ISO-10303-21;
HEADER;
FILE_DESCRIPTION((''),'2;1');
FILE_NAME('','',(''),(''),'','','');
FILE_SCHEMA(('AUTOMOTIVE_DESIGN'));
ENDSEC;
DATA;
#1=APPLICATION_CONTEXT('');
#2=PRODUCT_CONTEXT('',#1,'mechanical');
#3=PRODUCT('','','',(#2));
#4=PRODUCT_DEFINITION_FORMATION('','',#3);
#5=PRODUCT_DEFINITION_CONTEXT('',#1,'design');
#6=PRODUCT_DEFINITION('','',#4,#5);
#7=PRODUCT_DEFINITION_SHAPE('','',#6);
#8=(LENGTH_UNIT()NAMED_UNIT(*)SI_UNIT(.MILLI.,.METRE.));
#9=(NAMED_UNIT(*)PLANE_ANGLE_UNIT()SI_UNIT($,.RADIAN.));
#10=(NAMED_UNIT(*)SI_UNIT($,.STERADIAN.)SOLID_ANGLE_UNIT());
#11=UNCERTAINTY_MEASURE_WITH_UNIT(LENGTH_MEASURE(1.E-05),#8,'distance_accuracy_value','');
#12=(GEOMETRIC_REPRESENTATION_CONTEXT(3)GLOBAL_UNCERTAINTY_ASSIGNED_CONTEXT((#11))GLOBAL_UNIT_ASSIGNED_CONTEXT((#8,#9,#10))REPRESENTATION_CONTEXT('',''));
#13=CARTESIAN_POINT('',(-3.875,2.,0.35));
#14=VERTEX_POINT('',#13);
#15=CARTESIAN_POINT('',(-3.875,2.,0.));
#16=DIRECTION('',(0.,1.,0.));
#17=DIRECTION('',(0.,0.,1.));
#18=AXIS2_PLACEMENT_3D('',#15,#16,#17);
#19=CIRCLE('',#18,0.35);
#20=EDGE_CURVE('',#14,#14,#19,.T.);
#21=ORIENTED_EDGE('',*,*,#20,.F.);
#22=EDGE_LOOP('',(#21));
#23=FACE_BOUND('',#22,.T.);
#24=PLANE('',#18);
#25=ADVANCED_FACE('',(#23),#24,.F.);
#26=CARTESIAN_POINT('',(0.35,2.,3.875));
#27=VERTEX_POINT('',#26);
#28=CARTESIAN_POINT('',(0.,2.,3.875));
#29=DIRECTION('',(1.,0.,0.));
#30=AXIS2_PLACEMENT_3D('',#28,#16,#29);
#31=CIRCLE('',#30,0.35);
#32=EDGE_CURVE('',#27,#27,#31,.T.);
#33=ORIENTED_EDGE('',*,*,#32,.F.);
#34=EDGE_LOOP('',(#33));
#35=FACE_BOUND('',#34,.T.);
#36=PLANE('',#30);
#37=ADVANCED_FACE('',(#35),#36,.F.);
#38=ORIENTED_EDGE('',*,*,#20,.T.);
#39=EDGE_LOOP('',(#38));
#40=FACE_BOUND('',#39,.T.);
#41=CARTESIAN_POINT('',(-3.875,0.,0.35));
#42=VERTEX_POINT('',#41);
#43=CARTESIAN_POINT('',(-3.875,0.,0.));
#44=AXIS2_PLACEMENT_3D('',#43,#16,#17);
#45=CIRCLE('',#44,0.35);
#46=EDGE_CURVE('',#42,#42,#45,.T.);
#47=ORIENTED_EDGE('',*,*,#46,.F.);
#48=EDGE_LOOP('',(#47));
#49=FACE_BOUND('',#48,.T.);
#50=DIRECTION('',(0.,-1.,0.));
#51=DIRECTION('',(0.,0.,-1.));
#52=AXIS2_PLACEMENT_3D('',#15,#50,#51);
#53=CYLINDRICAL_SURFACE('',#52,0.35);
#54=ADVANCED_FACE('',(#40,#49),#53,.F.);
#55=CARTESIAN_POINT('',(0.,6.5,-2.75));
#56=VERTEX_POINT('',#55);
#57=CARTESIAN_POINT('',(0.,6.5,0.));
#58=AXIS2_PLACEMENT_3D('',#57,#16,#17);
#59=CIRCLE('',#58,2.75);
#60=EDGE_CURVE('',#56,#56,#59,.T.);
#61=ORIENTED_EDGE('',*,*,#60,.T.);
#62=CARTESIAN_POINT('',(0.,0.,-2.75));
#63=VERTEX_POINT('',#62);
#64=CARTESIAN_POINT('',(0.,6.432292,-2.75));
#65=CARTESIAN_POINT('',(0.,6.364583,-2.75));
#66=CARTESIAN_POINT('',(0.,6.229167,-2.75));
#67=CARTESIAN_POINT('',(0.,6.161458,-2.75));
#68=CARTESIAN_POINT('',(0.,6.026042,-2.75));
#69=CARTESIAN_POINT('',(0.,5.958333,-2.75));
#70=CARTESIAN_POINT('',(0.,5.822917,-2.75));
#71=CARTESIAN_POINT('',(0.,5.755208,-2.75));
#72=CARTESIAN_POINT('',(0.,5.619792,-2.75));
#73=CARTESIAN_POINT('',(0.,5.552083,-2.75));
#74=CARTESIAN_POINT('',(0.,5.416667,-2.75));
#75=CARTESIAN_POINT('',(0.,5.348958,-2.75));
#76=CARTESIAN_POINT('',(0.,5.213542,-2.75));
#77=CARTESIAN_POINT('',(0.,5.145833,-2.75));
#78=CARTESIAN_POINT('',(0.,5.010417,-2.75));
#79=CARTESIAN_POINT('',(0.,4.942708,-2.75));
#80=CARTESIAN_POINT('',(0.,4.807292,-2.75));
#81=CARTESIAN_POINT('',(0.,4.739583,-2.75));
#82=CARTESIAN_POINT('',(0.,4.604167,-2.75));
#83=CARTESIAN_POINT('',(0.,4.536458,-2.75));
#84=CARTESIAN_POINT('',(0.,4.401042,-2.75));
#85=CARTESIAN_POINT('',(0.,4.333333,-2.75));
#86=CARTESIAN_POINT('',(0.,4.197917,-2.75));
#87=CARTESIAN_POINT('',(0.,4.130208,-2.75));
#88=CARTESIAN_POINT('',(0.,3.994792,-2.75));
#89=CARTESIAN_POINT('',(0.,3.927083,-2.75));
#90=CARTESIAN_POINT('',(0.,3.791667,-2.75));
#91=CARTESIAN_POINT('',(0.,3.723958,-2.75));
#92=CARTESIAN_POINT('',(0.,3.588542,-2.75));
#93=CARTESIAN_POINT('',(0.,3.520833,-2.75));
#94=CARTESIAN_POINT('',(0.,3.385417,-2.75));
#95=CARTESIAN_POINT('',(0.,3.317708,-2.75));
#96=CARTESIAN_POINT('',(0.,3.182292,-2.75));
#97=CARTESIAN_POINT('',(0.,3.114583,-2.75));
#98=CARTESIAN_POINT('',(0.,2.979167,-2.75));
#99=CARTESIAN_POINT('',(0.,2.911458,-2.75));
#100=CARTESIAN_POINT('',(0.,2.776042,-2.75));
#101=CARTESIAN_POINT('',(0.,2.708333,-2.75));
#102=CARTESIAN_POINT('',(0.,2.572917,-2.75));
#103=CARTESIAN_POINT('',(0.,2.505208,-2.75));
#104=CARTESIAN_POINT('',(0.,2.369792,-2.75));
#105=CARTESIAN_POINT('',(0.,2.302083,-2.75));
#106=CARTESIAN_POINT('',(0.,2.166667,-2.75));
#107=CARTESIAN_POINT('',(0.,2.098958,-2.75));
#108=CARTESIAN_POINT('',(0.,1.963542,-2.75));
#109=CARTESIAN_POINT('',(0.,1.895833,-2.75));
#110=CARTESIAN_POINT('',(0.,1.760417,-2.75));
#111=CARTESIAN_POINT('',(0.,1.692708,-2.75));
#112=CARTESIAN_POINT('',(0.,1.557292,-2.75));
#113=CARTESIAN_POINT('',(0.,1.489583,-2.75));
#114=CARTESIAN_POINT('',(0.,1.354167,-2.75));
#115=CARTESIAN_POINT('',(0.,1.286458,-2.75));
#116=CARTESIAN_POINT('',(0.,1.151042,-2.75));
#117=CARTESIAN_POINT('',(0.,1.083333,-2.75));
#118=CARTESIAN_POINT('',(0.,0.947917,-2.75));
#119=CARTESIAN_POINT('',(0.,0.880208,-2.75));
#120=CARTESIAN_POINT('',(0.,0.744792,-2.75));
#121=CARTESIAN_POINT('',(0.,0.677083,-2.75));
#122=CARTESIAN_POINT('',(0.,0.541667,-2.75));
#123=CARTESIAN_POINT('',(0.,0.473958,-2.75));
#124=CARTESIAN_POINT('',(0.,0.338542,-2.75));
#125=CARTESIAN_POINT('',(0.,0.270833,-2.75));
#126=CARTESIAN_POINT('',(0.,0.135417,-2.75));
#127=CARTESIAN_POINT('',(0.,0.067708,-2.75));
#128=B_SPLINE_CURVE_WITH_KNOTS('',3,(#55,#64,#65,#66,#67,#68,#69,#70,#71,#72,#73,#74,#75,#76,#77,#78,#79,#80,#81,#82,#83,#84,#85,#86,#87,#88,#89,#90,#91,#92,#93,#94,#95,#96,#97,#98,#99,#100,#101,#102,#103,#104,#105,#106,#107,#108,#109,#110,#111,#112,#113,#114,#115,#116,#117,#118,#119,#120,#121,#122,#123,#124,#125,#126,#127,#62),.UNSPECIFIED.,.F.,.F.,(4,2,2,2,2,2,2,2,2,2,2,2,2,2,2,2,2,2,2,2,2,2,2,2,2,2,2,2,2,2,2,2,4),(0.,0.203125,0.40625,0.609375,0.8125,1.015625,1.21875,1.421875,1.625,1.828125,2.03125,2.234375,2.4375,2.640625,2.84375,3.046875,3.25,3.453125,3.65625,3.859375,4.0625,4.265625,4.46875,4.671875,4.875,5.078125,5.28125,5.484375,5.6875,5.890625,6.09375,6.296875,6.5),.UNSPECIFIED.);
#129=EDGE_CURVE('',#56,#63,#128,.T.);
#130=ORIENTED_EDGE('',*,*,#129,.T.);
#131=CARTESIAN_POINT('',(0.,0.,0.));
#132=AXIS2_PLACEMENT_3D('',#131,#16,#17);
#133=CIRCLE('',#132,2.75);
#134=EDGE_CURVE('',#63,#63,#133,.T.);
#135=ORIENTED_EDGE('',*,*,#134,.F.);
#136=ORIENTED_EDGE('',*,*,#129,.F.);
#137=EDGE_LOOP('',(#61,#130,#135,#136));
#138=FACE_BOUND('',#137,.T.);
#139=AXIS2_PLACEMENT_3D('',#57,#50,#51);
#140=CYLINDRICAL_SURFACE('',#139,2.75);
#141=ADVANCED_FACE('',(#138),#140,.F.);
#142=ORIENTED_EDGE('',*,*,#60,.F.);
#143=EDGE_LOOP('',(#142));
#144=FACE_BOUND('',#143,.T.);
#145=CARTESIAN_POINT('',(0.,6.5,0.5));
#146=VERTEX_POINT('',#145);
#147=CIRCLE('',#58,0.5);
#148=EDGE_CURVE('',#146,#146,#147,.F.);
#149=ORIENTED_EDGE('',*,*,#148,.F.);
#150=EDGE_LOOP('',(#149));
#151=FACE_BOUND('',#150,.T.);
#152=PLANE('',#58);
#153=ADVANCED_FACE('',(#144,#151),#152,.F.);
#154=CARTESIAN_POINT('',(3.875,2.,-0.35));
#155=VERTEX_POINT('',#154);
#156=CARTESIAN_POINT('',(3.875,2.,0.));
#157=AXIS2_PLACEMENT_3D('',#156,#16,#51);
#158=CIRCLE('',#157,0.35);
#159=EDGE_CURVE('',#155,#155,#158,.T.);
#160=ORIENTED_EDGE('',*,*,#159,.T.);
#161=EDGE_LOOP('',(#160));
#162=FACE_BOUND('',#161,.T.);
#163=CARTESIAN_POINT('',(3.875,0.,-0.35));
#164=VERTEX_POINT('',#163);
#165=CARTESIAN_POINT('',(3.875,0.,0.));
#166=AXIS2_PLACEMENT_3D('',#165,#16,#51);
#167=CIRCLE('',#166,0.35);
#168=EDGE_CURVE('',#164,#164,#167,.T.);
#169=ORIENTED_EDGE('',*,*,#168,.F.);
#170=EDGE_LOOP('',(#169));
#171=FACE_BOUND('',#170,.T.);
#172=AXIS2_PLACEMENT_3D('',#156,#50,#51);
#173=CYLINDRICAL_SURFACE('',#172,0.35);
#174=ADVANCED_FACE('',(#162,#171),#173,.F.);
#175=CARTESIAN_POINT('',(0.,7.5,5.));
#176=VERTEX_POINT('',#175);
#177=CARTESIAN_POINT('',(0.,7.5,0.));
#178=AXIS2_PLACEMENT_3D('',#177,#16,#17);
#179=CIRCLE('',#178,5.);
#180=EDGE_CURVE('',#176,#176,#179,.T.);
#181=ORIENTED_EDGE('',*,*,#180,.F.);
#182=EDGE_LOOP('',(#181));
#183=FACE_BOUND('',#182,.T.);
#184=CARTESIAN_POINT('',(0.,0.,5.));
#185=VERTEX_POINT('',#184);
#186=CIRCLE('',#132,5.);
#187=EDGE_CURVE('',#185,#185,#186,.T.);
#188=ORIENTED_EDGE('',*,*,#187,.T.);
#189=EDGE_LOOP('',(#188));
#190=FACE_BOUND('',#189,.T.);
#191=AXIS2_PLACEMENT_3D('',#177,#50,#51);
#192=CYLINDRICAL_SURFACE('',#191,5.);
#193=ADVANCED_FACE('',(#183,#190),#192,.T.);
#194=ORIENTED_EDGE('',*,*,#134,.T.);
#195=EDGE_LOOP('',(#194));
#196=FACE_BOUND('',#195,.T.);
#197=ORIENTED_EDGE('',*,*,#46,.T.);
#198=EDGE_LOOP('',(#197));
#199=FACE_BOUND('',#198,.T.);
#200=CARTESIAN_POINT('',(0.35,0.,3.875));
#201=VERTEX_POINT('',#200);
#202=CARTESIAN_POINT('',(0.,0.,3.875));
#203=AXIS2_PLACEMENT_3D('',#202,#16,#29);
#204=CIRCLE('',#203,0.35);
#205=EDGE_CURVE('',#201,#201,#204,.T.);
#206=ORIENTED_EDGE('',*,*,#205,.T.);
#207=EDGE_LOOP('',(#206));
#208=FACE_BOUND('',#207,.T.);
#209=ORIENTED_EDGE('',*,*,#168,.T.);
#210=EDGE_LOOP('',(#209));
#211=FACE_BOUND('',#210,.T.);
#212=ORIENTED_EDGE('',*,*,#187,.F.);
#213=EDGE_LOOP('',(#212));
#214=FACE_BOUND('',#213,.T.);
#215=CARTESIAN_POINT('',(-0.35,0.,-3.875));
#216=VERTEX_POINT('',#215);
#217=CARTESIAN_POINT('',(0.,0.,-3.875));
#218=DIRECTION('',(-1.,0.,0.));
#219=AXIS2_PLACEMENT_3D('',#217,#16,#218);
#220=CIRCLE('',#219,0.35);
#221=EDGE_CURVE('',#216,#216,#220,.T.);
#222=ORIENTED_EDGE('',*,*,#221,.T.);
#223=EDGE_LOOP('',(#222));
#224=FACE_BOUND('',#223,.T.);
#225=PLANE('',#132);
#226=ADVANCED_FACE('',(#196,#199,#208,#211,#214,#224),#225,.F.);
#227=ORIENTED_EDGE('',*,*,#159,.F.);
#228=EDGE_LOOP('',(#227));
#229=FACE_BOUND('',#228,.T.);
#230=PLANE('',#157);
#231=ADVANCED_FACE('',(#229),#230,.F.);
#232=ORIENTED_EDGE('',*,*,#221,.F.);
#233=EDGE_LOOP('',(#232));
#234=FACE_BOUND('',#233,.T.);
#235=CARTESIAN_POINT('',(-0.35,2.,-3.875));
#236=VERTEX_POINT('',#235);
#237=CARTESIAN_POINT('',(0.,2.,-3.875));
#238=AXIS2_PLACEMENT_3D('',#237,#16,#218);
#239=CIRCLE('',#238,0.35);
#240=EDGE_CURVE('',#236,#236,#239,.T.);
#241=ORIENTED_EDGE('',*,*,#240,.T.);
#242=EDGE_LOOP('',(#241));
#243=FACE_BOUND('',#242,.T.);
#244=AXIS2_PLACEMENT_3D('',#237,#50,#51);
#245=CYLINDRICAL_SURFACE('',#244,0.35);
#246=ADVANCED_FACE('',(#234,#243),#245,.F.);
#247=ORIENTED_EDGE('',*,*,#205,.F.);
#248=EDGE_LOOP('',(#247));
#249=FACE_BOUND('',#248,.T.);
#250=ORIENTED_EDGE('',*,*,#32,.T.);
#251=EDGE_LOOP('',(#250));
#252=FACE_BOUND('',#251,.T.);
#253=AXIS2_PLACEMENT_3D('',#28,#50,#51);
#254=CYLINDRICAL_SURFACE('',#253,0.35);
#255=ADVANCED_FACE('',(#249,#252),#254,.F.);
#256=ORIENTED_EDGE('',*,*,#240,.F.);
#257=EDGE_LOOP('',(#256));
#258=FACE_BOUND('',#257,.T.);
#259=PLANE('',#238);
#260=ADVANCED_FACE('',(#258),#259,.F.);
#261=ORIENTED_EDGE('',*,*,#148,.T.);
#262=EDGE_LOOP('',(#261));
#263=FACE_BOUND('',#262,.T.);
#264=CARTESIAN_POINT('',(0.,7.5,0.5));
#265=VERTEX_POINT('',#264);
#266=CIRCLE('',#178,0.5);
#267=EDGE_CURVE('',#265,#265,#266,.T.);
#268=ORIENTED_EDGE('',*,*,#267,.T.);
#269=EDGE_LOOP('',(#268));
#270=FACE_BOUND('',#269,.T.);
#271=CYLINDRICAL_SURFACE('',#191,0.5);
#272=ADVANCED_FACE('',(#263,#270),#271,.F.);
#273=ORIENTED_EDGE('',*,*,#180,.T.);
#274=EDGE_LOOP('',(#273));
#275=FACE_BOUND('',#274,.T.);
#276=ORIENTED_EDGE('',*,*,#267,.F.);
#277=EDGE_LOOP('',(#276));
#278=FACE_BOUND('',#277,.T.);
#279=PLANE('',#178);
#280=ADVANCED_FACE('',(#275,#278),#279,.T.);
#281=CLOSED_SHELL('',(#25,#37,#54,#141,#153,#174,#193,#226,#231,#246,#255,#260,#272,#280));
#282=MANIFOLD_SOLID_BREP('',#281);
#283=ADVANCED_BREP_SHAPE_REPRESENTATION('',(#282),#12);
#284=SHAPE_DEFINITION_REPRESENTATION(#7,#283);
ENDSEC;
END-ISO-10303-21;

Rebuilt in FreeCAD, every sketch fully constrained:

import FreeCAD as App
import Part
import Sketcher
from FreeCAD import Vector
Q = App.Units.Quantity

doc = App.newDocument("Part")
body = doc.addObject("PartDesign::Body", "Body")

# Sketch on XZ plane
sketch1 = body.newObject("Sketcher::SketchObject", "Sketch")
sketch1.AttachmentSupport = (doc.getObject("XZ_Plane"), [""])
sketch1.MapMode = "FlatFace"
sketch1.addGeometry(Part.Circle(Vector(0, 0, 0), Vector(0, 0, 1), 5), False)
sketch1.addConstraint(Sketcher.Constraint("Coincident", 0, 3, -1, 1))
sketch1.addConstraint(Sketcher.Constraint("Diameter", 0, Q("10 mm")))
pad1 = body.newObject("PartDesign::Pad", "Pad")
pad1.Profile = sketch1
pad1.Length = 7.5
pad1.Reversed = True

# Sketch on XZ plane
sketch2 = body.newObject("Sketcher::SketchObject", "Sketch001")
sketch2.AttachmentSupport = (doc.getObject("XZ_Plane"), [""])
sketch2.MapMode = "FlatFace"
sketch2.addGeometry(Part.Circle(Vector(0, 0, 0), Vector(0, 0, 1), 2.75), False)
sketch2.addConstraint(Sketcher.Constraint("Coincident", 0, 3, -1, 1))
sketch2.addConstraint(Sketcher.Constraint("Diameter", 0, Q("5.5 mm")))
pocket1 = body.newObject("PartDesign::Pocket", "Pocket")
pocket1.Profile = sketch2
pocket1.Length = 6.5

# Sketch on XZ plane
sketch3 = body.newObject("Sketcher::SketchObject", "Sketch002")
sketch3.AttachmentSupport = (doc.getObject("XZ_Plane"), [""])
sketch3.MapMode = "FlatFace"
sketch3.addGeometry(Part.Circle(Vector(0, 0, 0), Vector(0, 0, 1), 0.5), False)
sketch3.addConstraint(Sketcher.Constraint("Coincident", 0, 3, -1, 1))
sketch3.addConstraint(Sketcher.Constraint("Diameter", 0, Q("1 mm")))
pocket2 = body.newObject("PartDesign::Pocket", "Pocket001")
pocket2.Profile = sketch3
pocket2.Type = "ThroughAll"

# Sketch on XZ plane
sketch4 = body.newObject("Sketcher::SketchObject", "Sketch003")
sketch4.AttachmentSupport = (doc.getObject("XZ_Plane"), [""])
sketch4.MapMode = "FlatFace"
sketch4.addGeometry(Part.Circle(Vector(-3.875, 0, 0), Vector(0, 0, 1), 0.35), False)
sketch4.addConstraint(Sketcher.Constraint("PointOnObject", 0, 3, -1))
sketch4.addConstraint(Sketcher.Constraint("Diameter", 0, Q("0.7 mm")))
sketch4.addConstraint(Sketcher.Constraint("DistanceX", 0, 3, -1, 1, Q("3.875 mm")))
pocket3 = body.newObject("PartDesign::Pocket", "Pocket002")
pocket3.Profile = sketch4
pocket3.Length = 2
doc.recompute()

polarpattern = body.newObject("PartDesign::PolarPattern", "PolarPattern")
polarpattern.Originals = [pocket3]
polarpattern.Axis = (doc.getObject("Y_Axis"), [""])
polarpattern.Angle = 360
polarpattern.Occurrences = 4
body.Tip = polarpattern

doc.recompute()
